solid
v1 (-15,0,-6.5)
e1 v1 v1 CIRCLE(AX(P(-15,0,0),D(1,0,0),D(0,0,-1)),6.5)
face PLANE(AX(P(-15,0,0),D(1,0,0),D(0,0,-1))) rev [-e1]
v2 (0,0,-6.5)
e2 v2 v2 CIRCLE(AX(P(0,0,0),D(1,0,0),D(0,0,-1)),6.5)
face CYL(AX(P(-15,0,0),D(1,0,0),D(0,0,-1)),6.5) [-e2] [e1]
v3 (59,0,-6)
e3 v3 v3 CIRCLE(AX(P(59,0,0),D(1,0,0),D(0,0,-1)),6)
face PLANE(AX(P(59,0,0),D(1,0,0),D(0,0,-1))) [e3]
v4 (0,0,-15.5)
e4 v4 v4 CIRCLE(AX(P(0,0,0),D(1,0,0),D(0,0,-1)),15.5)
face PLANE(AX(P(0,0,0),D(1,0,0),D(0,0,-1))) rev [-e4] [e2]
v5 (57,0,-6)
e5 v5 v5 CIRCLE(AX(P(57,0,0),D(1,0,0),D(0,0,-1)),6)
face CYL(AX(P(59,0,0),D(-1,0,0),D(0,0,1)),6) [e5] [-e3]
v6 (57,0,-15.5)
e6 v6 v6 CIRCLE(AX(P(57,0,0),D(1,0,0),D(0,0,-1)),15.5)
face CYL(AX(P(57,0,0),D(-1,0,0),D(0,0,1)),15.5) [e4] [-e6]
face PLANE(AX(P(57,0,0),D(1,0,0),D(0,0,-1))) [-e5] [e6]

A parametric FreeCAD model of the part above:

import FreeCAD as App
import Part
import Sketcher
from FreeCAD import Vector

doc = App.newDocument("Part")
body = doc.addObject("PartDesign::Body", "Body")

sketch1 = doc.addObject("Sketcher::SketchObject", "Sketch")
body.addObject(sketch1)
sketch1.AttachmentSupport = (doc.YZ_Plane, [""])
sketch1.MapMode = "FlatFace"
sketch1.addGeometry(Part.Circle(Vector(0, 0, 0), Vector(0, 0, 1), 16), False)
sketch1.addConstraint([
    Sketcher.Constraint("Coincident", 0, 3, -1, 1),
    Sketcher.Constraint("Diameter", 0, 31.0),
])
pad1 = doc.addObject("PartDesign::Pad", "Pad")
body.addObject(pad1)
pad1.Profile = sketch1
pad1.Length = 57

sketch2 = doc.addObject("Sketcher::SketchObject", "Sketch001")
body.addObject(sketch2)
sketch2.AttachmentSupport = (doc.YZ_Plane, [""])
sketch2.MapMode = "FlatFace"
sketch2.addGeometry(Part.Circle(Vector(0, 0, 0), Vector(0, 0, 1), 6), False)
sketch2.addConstraint([
    Sketcher.Constraint("Coincident", 0, 3, -1, 1),
    Sketcher.Constraint("Diameter", 0, 13.0),
])
pad2 = doc.addObject("PartDesign::Pad", "Pad001")
body.addObject(pad2)
pad2.Profile = sketch2
pad2.Length = 15
pad2.Reversed = True

sketch3 = doc.addObject("Sketcher::SketchObject", "Sketch002")
body.addObject(sketch3)
sketch3.AttachmentSupport = (doc.YZ_Plane, [""])
sketch3.MapMode = "FlatFace"
sketch3.AttachmentOffset = App.Placement(Vector(0, 0, 57), App.Rotation())
sketch3.addGeometry(Part.Circle(Vector(0, 0, 0), Vector(0, 0, 1), 6), False)
sketch3.addConstraint([
    Sketcher.Constraint("Coincident", 0, 3, -1, 1),
    Sketcher.Constraint("Diameter", 0, 12.0),
])
pad3 = doc.addObject("PartDesign::Pad", "Pad002")
body.addObject(pad3)
pad3.Profile = sketch3
pad3.Length = 2

doc.recompute()
